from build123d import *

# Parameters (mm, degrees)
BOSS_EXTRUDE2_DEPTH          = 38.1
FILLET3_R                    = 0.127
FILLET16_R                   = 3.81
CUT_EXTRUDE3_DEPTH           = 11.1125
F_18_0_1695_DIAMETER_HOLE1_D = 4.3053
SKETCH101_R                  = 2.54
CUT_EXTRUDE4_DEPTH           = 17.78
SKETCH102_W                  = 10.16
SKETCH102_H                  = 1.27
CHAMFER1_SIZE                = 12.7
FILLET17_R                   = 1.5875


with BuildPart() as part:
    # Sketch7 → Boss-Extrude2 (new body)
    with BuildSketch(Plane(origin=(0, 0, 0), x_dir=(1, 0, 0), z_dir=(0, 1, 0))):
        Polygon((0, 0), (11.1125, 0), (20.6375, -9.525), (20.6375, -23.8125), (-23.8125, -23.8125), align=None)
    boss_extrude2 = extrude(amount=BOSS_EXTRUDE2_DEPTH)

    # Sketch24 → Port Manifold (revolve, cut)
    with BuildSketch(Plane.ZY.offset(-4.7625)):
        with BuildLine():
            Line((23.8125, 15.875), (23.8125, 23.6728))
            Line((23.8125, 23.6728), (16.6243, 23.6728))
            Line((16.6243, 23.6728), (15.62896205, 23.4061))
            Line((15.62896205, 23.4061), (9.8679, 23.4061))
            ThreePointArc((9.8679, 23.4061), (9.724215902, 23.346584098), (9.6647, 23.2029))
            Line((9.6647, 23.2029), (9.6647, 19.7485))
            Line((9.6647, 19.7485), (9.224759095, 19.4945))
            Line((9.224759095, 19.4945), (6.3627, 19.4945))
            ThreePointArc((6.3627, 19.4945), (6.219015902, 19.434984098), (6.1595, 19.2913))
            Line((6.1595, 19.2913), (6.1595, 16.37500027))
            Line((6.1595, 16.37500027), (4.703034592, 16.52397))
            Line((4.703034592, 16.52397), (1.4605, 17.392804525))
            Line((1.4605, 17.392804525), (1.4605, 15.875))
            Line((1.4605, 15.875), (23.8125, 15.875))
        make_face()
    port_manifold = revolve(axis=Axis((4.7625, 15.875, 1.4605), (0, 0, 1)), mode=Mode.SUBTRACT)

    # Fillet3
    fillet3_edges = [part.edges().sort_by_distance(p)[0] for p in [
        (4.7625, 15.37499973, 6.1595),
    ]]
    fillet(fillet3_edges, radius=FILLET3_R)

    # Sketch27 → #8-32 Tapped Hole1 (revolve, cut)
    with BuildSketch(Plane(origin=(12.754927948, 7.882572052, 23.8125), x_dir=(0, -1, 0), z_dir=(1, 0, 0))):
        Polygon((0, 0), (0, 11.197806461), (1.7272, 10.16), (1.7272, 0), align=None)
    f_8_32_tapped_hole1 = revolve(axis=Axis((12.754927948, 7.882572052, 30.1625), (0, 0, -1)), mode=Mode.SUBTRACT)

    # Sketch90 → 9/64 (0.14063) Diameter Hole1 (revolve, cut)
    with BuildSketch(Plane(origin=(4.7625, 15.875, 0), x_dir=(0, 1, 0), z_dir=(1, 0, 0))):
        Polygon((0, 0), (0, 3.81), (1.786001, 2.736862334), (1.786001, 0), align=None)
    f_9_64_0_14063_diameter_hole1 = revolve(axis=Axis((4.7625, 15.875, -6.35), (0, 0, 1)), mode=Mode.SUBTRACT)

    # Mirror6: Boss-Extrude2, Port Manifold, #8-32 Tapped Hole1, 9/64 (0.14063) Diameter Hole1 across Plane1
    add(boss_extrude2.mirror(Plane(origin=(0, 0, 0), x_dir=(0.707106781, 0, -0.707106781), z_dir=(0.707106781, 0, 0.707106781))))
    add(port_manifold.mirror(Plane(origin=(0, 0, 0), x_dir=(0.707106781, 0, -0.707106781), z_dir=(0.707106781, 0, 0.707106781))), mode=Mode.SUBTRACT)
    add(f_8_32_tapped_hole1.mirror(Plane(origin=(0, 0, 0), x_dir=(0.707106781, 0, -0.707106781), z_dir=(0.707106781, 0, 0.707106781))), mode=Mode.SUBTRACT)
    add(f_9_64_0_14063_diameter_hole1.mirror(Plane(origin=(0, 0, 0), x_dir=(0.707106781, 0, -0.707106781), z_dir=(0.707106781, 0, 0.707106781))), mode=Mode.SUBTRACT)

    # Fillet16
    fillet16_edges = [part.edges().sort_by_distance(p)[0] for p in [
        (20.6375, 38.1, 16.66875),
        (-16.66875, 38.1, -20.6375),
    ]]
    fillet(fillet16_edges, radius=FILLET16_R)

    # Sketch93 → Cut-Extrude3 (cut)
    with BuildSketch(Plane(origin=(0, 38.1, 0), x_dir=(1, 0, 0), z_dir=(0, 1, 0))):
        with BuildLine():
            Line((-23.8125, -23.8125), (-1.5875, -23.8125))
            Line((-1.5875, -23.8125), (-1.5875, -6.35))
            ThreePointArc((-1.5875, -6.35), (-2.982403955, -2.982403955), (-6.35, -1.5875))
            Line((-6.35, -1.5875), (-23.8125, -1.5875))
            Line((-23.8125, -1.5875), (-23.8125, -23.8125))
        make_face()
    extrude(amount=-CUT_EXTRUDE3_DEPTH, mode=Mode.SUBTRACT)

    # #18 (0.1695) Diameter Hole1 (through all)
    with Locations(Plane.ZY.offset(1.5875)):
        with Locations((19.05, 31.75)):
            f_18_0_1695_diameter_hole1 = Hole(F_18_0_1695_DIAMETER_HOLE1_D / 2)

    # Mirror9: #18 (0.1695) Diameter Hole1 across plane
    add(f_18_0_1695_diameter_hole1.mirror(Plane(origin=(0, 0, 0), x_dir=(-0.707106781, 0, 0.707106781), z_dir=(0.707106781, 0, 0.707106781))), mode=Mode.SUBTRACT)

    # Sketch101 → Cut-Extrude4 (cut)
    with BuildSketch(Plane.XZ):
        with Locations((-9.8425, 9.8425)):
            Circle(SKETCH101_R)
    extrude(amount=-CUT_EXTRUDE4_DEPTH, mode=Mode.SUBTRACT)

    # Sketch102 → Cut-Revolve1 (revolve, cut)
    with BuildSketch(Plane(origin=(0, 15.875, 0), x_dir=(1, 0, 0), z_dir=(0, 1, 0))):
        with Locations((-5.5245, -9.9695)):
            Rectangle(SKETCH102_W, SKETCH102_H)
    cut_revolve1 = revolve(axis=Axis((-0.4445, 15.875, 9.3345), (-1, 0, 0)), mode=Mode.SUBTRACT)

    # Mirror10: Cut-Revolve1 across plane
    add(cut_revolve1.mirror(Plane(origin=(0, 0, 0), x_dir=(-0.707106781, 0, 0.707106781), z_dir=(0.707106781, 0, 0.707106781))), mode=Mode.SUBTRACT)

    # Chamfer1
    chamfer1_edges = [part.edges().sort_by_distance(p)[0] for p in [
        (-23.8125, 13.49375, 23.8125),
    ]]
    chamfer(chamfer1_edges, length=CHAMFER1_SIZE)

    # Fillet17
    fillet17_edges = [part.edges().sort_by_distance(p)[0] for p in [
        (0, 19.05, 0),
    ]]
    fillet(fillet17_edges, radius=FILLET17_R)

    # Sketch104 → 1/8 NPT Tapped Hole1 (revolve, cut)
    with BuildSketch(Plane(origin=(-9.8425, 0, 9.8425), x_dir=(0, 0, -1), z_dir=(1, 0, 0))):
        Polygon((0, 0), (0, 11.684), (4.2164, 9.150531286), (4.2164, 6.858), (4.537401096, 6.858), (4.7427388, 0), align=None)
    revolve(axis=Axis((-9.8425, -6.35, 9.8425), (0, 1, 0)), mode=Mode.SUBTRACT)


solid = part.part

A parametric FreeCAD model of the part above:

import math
import FreeCAD as App
import Part
import Sketcher
Q = App.Units.Quantity


def edges_at(feature, points):
    """Names of the edges that pass closest to the given points."""
    edges = feature.Shape.Edges
    near = lambda p: min(range(len(edges)), key=lambda i: edges[i].distToShape(Part.Vertex(*p))[0])
    return sorted({f"Edge{near(p) + 1}" for p in points})


def add_polygon(sketch, points):
    """Adds a closed chain of lines whose ends are joined by coincident constraints."""
    first, n = sketch.GeometryCount, len(points)
    for a, b in zip(points, points[1:] + points[:1]):
        sketch.addGeometry(Part.LineSegment(App.Vector(*a, 0), App.Vector(*b, 0)), False)
    for i in range(n):
        sketch.addConstraint(Sketcher.Constraint("Coincident", first + i, 2, first + (i + 1) % n, 1))

doc = App.newDocument("Part")
body = doc.addObject("PartDesign::Body", "Body")

sketch1 = body.newObject("Sketcher::SketchObject", "Sketch")
sketch1.AttachmentSupport = (doc.getObject("XZ_Plane"), [""])
sketch1.MapMode = "FlatFace"
add_polygon(sketch1, [(11.1125, 0), (0, 0), (-23.8125, 23.8125), (20.6375, 23.8125), (20.6375, 9.525)])
sketch1.addConstraint([
    Sketcher.Constraint("Horizontal", 0),
    Sketcher.Constraint("Horizontal", 2),
    Sketcher.Constraint("Vertical", 3),
    Sketcher.Constraint("Coincident", 0, 2, -1, 1),
    Sketcher.Constraint("Perpendicular", 1, 4),
    Sketcher.Constraint("Angle", 1, Q("135 deg")),
    Sketcher.Constraint("DistanceX", 2, 1, 2, 2, Q("1.75 in")),
    Sketcher.Constraint("DistanceX", 0, 2, 0, 1, Q("0.4375 in")),
    Sketcher.Constraint("DistanceY", 3, 2, 3, 1, Q("0.5625 in")),
])
pad1 = body.newObject("PartDesign::Pad", "Pad")
pad1.Profile = sketch1
pad1.Length = Q("1.5 in")
pad1.Reversed = True

sketch2 = body.newObject("Sketcher::SketchObject", "Sketch001")
sketch2.AttachmentSupport = (doc.getObject("YZ_Plane"), [""])
sketch2.MapMode = "FlatFace"
sketch2.AttachmentOffset = App.Placement(App.Vector(0, 0, 0.1875 * 25.4), App.Rotation())
sketch2.addGeometry([
    Part.LineSegment(App.Vector(15.875, 23.8125, 0), App.Vector(23.6728, 23.8125, 0)),
    Part.LineSegment(App.Vector(23.6728, 23.8125, 0), App.Vector(23.6728, 16.6243, 0)),
    Part.LineSegment(App.Vector(23.6728, 16.6243, 0), App.Vector(23.4061, 15.628962, 0)),
    Part.LineSegment(App.Vector(23.4061, 15.628962, 0), App.Vector(23.4061, 9.8679, 0)),
    Part.ArcOfCircle(Part.Circle(App.Vector(23.2029, 9.8679, 0), App.Vector(0, 0, 1), 0.2032), math.radians(-90), math.radians(0)),
    Part.LineSegment(App.Vector(23.2029, 9.6647, 0), App.Vector(19.7485, 9.6647, 0)),
    Part.LineSegment(App.Vector(19.7485, 9.6647, 0), App.Vector(19.4945, 9.224759, 0)),
    Part.LineSegment(App.Vector(19.4945, 9.224759, 0), App.Vector(19.4945, 6.3627, 0)),
    Part.ArcOfCircle(Part.Circle(App.Vector(19.2913, 6.3627, 0), App.Vector(0, 0, 1), 0.2032), math.radians(-90), math.radians(0)),
    Part.LineSegment(App.Vector(19.2913, 6.1595, 0), App.Vector(16.375, 6.1595, 0)),
    Part.LineSegment(App.Vector(16.375, 6.1595, 0), App.Vector(16.52397, 4.703035, 0)),
    Part.LineSegment(App.Vector(16.52397, 4.703035, 0), App.Vector(17.392805, 1.4605, 0)),
    Part.LineSegment(App.Vector(17.392805, 1.4605, 0), App.Vector(15.875, 1.4605, 0)),
    Part.LineSegment(App.Vector(15.875, 1.4605, 0), App.Vector(15.875, 23.8125, 0)),
], False)
sketch2.addGeometry(Part.LineSegment(App.Vector(15.875, 1.4605, 0), App.Vector(15.875, 23.8125, 0)), True)
sketch2.addConstraint([
    Sketcher.Constraint("Coincident", 0, 2, 1, 1),
    Sketcher.Constraint("Coincident", 1, 2, 2, 1),
    Sketcher.Constraint("Coincident", 2, 2, 3, 1),
    Sketcher.Constraint("Tangent", 3, 2, 4, 2),
    Sketcher.Constraint("Tangent", 4, 1, 5, 1),
    Sketcher.Constraint("Coincident", 5, 2, 6, 1),
    Sketcher.Constraint("Coincident", 6, 2, 7, 1),
    Sketcher.Constraint("Tangent", 7, 2, 8, 2),
    Sketcher.Constraint("Tangent", 8, 1, 9, 1),
    Sketcher.Constraint("Coincident", 9, 2, 10, 1),
    Sketcher.Constraint("Coincident", 10, 2, 11, 1),
    Sketcher.Constraint("Coincident", 11, 2, 12, 1),
    Sketcher.Constraint("Coincident", 12, 2, 13, 1),
    Sketcher.Constraint("Coincident", 13, 2, 0, 1),
    Sketcher.Constraint("Horizontal", 0),
    Sketcher.Constraint("Vertical", 1),
    Sketcher.Constraint("Vertical", 3),
    Sketcher.Constraint("Horizontal", 5),
    Sketcher.Constraint("Vertical", 7),
    Sketcher.Constraint("Horizontal", 9),
    Sketcher.Constraint("Horizontal", 12),
    Sketcher.Constraint("Vertical", 13),
    Sketcher.Constraint("Vertical", 14),
    Sketcher.Constraint("Coincident", 14, 1, 12, 2),
    Sketcher.Constraint("Equal", 4, 8),
    Sketcher.Constraint("Horizontal", 0, 2, 14, 2),
    Sketcher.Constraint("Angle", 2, Q("-105 deg")),
    Sketcher.Constraint("Angle", 6, Q("-120 deg")),
    Sketcher.Constraint("Angle", 11, Q("-75 deg")),
    Sketcher.Constraint("Radius", 4, Q("0.008 in")),
    Sketcher.Constraint("DistanceY", 13, 1, 13, 2, Q("0.88 in")),
    Sketcher.Constraint("Distance", 6, Q("0.02 in")),
    Sketcher.Constraint("DistanceX", 0, 1, 0, 2, Q("0.307 in")),
    Sketcher.Constraint("DistanceX", 5, 2, 5, 1, Q("0.136 in")),
    Sketcher.Constraint("DistanceY", 1, 2, 1, 1, Q("0.283 in")),
    Sketcher.Constraint("Angle", 10, Q("-84.16 deg")),
    Sketcher.Constraint("DistanceY", 8, 3, 4, 1, Q("0.13 in")),
    Sketcher.Constraint("DistanceX", -1, 1, 0, 2, Q("0.932 in")),
    Sketcher.Constraint("DistanceY", -1, 1, 0, 2, Q("0.9375 in")),
    Sketcher.Constraint("DistanceY", 4, 3, 0, 2, Q("0.549 in")),
    Sketcher.Constraint("DistanceX", 9, 2, 9, 1, 2.9163),
    Sketcher.Constraint("DistanceX", -1, 1, 4, 3, Q("0.9135 in")),
    Sketcher.Constraint("Distance", 11, 3.356919),
])
groove = body.newObject("PartDesign::Groove", "Groove")
groove.Profile = sketch2
groove.ReferenceAxis = (sketch2, ["Axis0"])
groove.Angle = 360
doc.recompute()

fillet = body.newObject("PartDesign::Fillet", "Fillet")
fillet.Base = (groove, edges_at(groove, [(4.763, 15.375, 6.16)]))
fillet.Radius = Q("0.005 in")

sketch3 = body.newObject("Sketcher::SketchObject", "Sketch002")
sketch3.AttachmentSupport = (doc.getObject("YZ_Plane"), [""])
sketch3.MapMode = "FlatFace"
sketch3.AttachmentOffset = App.Placement(App.Vector(0, 0, 12.754928), App.Rotation())
add_polygon(sketch3, [(7.882572, 12.614694), (7.882572, 23.8125), (6.155372, 23.8125), (6.155372, 13.6525)])
sketch3.addGeometry(Part.LineSegment(App.Vector(7.882572, 23.8125, 0), App.Vector(7.882572, 12.614694, 0)), True)
sketch3.addConstraint([
    Sketcher.Constraint("Vertical", 0),
    Sketcher.Constraint("Horizontal", 1),
    Sketcher.Constraint("Vertical", 2),
    Sketcher.Constraint("Vertical", 4),
    Sketcher.Constraint("Coincident", 4, 1, 0, 2),
    Sketcher.Constraint("Equal", 0, 4),
    Sketcher.Constraint("DistanceY", 2, 2, 2, 1, Q("0.4 in")),
    Sketcher.Constraint("Angle", 3, Q("-31 deg")),
    Sketcher.Constraint("DistanceX", 1, 2, 1, 1, Q("0.068 in")),
    Sketcher.Constraint("DistanceY", -1, 1, 0, 2, Q("0.9375 in")),
    Sketcher.Constraint("DistanceX", -1, 1, 0, 2, 7.882572),
])
groove2 = body.newObject("PartDesign::Groove", "Groove001")
groove2.Profile = sketch3
groove2.ReferenceAxis = (sketch3, ["Axis0"])
groove2.Angle = 360

sketch4 = body.newObject("Sketcher::SketchObject", "Sketch003")
sketch4.AttachmentSupport = (doc.getObject("YZ_Plane"), [""])
sketch4.MapMode = "FlatFace"
sketch4.AttachmentOffset = App.Placement(App.Vector(0, 0, 0.1875 * 25.4), App.Rotation())
add_polygon(sketch4, [(15.875, 3.81), (15.875, 0), (17.661001, 0), (17.661001, 2.736862)])
sketch4.addGeometry(Part.LineSegment(App.Vector(15.875, 0, 0), App.Vector(15.875, 3.81, 0)), True)
sketch4.addConstraint([
    Sketcher.Constraint("Vertical", 0),
    Sketcher.Constraint("Horizontal", 1),
    Sketcher.Constraint("Vertical", 2),
    Sketcher.Constraint("Vertical", 4),
    Sketcher.Constraint("Coincident", 4, 1, 0, 2),
    Sketcher.Constraint("PointOnObject", 0, 2, -1),
    Sketcher.Constraint("Equal", 0, 4),
    Sketcher.Constraint("Angle", 3, Q("149 deg")),
    Sketcher.Constraint("DistanceY", 0, 2, 0, 1, Q("0.15 in")),
    Sketcher.Constraint("DistanceX", -1, 1, 0, 2, Q("0.625 in")),
    Sketcher.Constraint("DistanceX", 1, 1, 1, 2, 1.786001),
])
groove3 = body.newObject("PartDesign::Groove", "Groove002")
groove3.Profile = sketch4
groove3.ReferenceAxis = (sketch4, ["Axis0"])
groove3.Angle = 360
doc.recompute()

datumplane = body.newObject("PartDesign::Plane", "DatumPlane")
datumplane.Placement = App.Placement(App.Vector(0, 0, 0), App.Rotation(App.Vector(-0.707106781, 0, 0.707106781), App.Vector(0, -1, 0), App.Vector(0.707106781, 0, 0.707106781), "ZXY"))
mirrored = body.newObject("PartDesign::Mirrored", "Mirrored")
mirrored.Originals = [pad1, groove, groove2, groove3]
mirrored.MirrorPlane = (datumplane, [""])
body.Tip = mirrored
doc.recompute()

fillet2 = body.newObject("PartDesign::Fillet", "Fillet001")
fillet2.Base = (mirrored, edges_at(mirrored, [(20.637, 38.1, 16.669), (-16.669, 38.1, -20.637)]))
fillet2.Radius = Q("0.15 in")

sketch5 = body.newObject("Sketcher::SketchObject", "Sketch004")
sketch5.AttachmentSupport = (doc.getObject("XZ_Plane"), [""])
sketch5.MapMode = "FlatFace"
sketch5.AttachmentOffset = App.Placement(App.Vector(0, 0, -1.5 * 25.4), App.Rotation())
sketch5.addGeometry([
    Part.LineSegment(App.Vector(-23.8125, 23.8125, 0), App.Vector(-1.5875, 23.8125, 0)),
    Part.LineSegment(App.Vector(-1.5875, 23.8125, 0), App.Vector(-1.5875, 6.35, 0)),
    Part.ArcOfCircle(Part.Circle(App.Vector(-6.35, 6.35, 0), App.Vector(0, 0, 1), 4.7625), math.radians(-90), math.radians(0)),
    Part.LineSegment(App.Vector(-6.35, 1.5875, 0), App.Vector(-23.8125, 1.5875, 0)),
    Part.LineSegment(App.Vector(-23.8125, 1.5875, 0), App.Vector(-23.8125, 23.8125, 0)),
], False)
sketch5.addConstraint([
    Sketcher.Constraint("Coincident", 0, 2, 1, 1),
    Sketcher.Constraint("Tangent", 1, 2, 2, 2),
    Sketcher.Constraint("Tangent", 2, 1, 3, 1),
    Sketcher.Constraint("Coincident", 3, 2, 4, 1),
    Sketcher.Constraint("Coincident", 4, 2, 0, 1),
    Sketcher.Constraint("Horizontal", 0),
    Sketcher.Constraint("Vertical", 1),
    Sketcher.Constraint("Horizontal", 3),
    Sketcher.Constraint("Vertical", 4),
    Sketcher.Constraint("Equal", 3, 1),
    Sketcher.Constraint("Radius", 2, Q("0.1875 in")),
    Sketcher.Constraint("DistanceX", 0, 1, 0, 2, Q("0.875 in")),
    Sketcher.Constraint("DistanceX", 2, 3, -1, 1, Q("0.25 in")),
    Sketcher.Constraint("DistanceY", -1, 1, 2, 3, Q("0.25 in")),
])
pocket1 = body.newObject("PartDesign::Pocket", "Pocket")
pocket1.Profile = sketch5
pocket1.Length = Q("0.4375 in")
pocket1.Reversed = True

sketch6 = body.newObject("Sketcher::SketchObject", "Sketch005")
sketch6.AttachmentSupport = (doc.getObject("YZ_Plane"), [""])
sketch6.MapMode = "FlatFace"
sketch6.AttachmentOffset = App.Placement(App.Vector(0, 0, -0.0625 * 25.4), App.Rotation())
sketch6.addGeometry(Part.Circle(App.Vector(31.75, 19.05, 0), App.Vector(0, 0, 1), 2.15265), False)
sketch6.addConstraint([
    Sketcher.Constraint("Diameter", 0, Q("0.1695 in")),
    Sketcher.Constraint("DistanceX", -1, 1, 0, 3, Q("1.25 in")),
    Sketcher.Constraint("DistanceY", -1, 1, 0, 3, Q("0.75 in")),
])
doc.recompute()
hole = body.newObject("PartDesign::Hole", "Hole")
hole.Profile = sketch6
hole.ThreadType = "None"
hole.Diameter = Q("0.1695 in")
hole.DepthType = "ThroughAll"
hole.Reversed = True
doc.recompute()

datumplane2 = body.newObject("PartDesign::Plane", "DatumPlane001")
datumplane2.Placement = App.Placement(App.Vector(0, 0, 0), App.Rotation(App.Vector(-0.707106781, 0, 0.707106781), App.Vector(0, -1, 0), App.Vector(0.707106781, 0, 0.707106781), "ZXY"))
mirrored2 = body.newObject("PartDesign::Mirrored", "Mirrored001")
mirrored2.Originals = [hole]
mirrored2.MirrorPlane = (datumplane2, [""])
body.Tip = mirrored2

sketch7 = body.newObject("Sketcher::SketchObject", "Sketch006")
sketch7.AttachmentSupport = (doc.getObject("XZ_Plane"), [""])
sketch7.MapMode = "FlatFace"
sketch7.addGeometry(Part.Circle(App.Vector(-9.8425, 9.8425, 0), App.Vector(0, 0, 1), 2.54), False)
sketch7.addConstraint([
    Sketcher.Constraint("Diameter", 0, Q("0.2 in")),
    Sketcher.Constraint("DistanceX", 0, 3, -1, 1, Q("0.3875 in")),
    Sketcher.Constraint("DistanceY", -1, 1, 0, 3, Q("0.3875 in")),
])
pocket2 = body.newObject("PartDesign::Pocket", "Pocket001")
pocket2.Profile = sketch7
pocket2.Length = Q("0.7 in")

sketch8 = body.newObject("Sketcher::SketchObject", "Sketch007")
sketch8.AttachmentSupport = (doc.getObject("XZ_Plane"), [""])
sketch8.MapMode = "FlatFace"
sketch8.AttachmentOffset = App.Placement(App.Vector(0, 0, -0.625 * 25.4), App.Rotation())
add_polygon(sketch8, [(-10.6045, 9.3345), (-10.6045, 10.6045), (-0.4445, 10.6045), (-0.4445, 9.3345)])
sketch8.addGeometry(Part.LineSegment(App.Vector(-0.4445, 9.3345, 0), App.Vector(-10.6045, 9.3345, 0)), True)
sketch8.addConstraint([
    Sketcher.Constraint("Vertical", 0),
    Sketcher.Constraint("Horizontal", 1),
    Sketcher.Constraint("Vertical", 2),
    Sketcher.Constraint("Horizontal", 3),
    Sketcher.Constraint("Horizontal", 4),
    Sketcher.Constraint("Coincident", 4, 1, 2, 2),
    Sketcher.Constraint("Vertical", 0, 2, 4, 2),
    Sketcher.Constraint("DistanceX", 1, 1, 1, 2, Q("0.4 in")),
    Sketcher.Constraint("DistanceY", 0, 1, 0, 2, Q("0.05 in")),
    Sketcher.Constraint("DistanceX", 0, 2, -1, 1, Q("0.4175 in")),
    Sketcher.Constraint("DistanceY", -1, 1, 0, 2, Q("0.4175 in")),
])
groove4 = body.newObject("PartDesign::Groove", "Groove003")
groove4.Profile = sketch8
groove4.ReferenceAxis = (sketch8, ["Axis0"])
groove4.Angle = 360
doc.recompute()

datumplane3 = body.newObject("PartDesign::Plane", "DatumPlane002")
datumplane3.Placement = App.Placement(App.Vector(0, 0, 0), App.Rotation(App.Vector(-0.707106781, 0, 0.707106781), App.Vector(0, -1, 0), App.Vector(0.707106781, 0, 0.707106781), "ZXY"))
mirrored3 = body.newObject("PartDesign::Mirrored", "Mirrored002")
mirrored3.Originals = [groove4]
mirrored3.MirrorPlane = (datumplane3, [""])
body.Tip = mirrored3
doc.recompute()

chamfer = body.newObject("PartDesign::Chamfer", "Chamfer")
chamfer.Base = (mirrored3, edges_at(mirrored3, [(-23.812, 13.494, 23.812)]))
chamfer.Size = Q("0.5 in")
doc.recompute()

fillet3 = body.newObject("PartDesign::Fillet", "Fillet002")
fillet3.Base = (chamfer, edges_at(chamfer, [(0, 19.05, 0)]))
fillet3.Radius = Q("0.0625 in")

sketch9 = body.newObject("Sketcher::SketchObject", "Sketch008")
sketch9.AttachmentSupport = (doc.getObject("YZ_Plane"), [""])
sketch9.MapMode = "FlatFace"
sketch9.AttachmentOffset = App.Placement(App.Vector(0, 0, -0.3875 * 25.4), App.Rotation())
add_polygon(sketch9, [(11.684, 9.8425), (0, 9.8425), (0, 5.099761), (6.858, 5.305099), (6.858, 5.6261), (9.150531, 5.6261)])
sketch9.addGeometry(Part.LineSegment(App.Vector(0, 9.8425, 0), App.Vector(11.684, 9.8425, 0)), True)
sketch9.addConstraint([
    Sketcher.Constraint("Horizontal", 0),
    Sketcher.Constraint("Vertical", 1),
    Sketcher.Constraint("Vertical", 3),
    Sketcher.Constraint("Horizontal", 4),
    Sketcher.Constraint("Horizontal", 6),
    Sketcher.Constraint("Coincident", 6, 1, 0, 2),
    Sketcher.Constraint("PointOnObject", 0, 2, -2),
    Sketcher.Constraint("Equal", 0, 6),
    Sketcher.Constraint("Angle", 5, Q("59 deg")),
    Sketcher.Constraint("DistanceX", 0, 2, 0, 1, Q("0.46 in")),
    Sketcher.Constraint("DistanceX", -1, 1, 2, 2, Q("0.27 in")),
    Sketcher.Constraint("DistanceY", 3, 2, 0, 2, Q("0.166 in")),
    Sketcher.Constraint("DistanceY", 3, 1, 3, 2, 0.321001),
    Sketcher.Constraint("DistanceY", -1, 1, 0, 2, Q("0.3875 in")),
    Sketcher.Constraint("DistanceY", 1, 2, 1, 1, 4.742739),
])
groove5 = body.newObject("PartDesign::Groove", "Groove004")
groove5.Profile = sketch9
groove5.ReferenceAxis = (sketch9, ["Axis0"])
groove5.Angle = 360

doc.recompute()
